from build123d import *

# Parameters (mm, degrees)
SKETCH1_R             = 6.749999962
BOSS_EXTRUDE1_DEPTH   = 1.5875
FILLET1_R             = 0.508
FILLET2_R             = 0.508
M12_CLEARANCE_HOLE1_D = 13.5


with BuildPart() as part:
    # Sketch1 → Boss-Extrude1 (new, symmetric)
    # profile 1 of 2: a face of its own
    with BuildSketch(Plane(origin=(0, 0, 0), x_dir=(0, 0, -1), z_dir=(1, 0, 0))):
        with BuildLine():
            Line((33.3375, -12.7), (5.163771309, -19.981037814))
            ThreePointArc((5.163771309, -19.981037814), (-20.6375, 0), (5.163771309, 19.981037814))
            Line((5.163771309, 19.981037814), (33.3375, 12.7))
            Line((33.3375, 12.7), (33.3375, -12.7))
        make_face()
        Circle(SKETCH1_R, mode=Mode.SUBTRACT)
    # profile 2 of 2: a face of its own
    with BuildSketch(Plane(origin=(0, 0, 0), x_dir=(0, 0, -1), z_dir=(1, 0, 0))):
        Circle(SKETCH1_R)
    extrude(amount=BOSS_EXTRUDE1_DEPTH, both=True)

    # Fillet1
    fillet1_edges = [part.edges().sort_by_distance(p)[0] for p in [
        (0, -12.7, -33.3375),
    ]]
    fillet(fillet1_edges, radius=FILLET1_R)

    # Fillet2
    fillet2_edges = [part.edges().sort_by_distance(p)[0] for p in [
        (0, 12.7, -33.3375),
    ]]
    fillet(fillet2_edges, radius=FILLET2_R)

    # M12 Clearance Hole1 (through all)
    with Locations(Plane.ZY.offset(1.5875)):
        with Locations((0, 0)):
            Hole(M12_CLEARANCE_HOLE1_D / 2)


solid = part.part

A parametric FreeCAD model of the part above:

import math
import FreeCAD as App
import Part
import Sketcher
Q = App.Units.Quantity


def edges_at(feature, points):
    """Names of the edges that pass closest to the given points."""
    edges = feature.Shape.Edges
    near = lambda p: min(range(len(edges)), key=lambda i: edges[i].distToShape(Part.Vertex(*p))[0])
    return sorted({f"Edge{near(p) + 1}" for p in points})

doc = App.newDocument("Part")
params = doc.addObject("Spreadsheet::Sheet", "Params")
for row, (alias, value) in enumerate([
    ("sketch1_width", "1 in"),
    ("sketch1_radius", "0.8125 in"),
    ("pad1_length", "0.125 in"),
    ("fillet_radius", "0.02 in"),
    ("fillet2_radius", "0.02 in"),
    ("hole_diameter", "13.5 mm"),
], start=1):
    params.set(f"A{row}", alias)
    params.set(f"B{row}", "=" + value)
    params.setAlias(f"B{row}", alias)

body = doc.addObject("PartDesign::Body", "Body")

# Sketch on YZ plane
sketch1 = body.newObject("Sketcher::SketchObject", "Sketch")
sketch1.AttachmentSupport = (doc.getObject("YZ_Plane"), [""])
sketch1.MapMode = "FlatFace"
sketch1.addGeometry(Part.LineSegment(App.Vector(-19.981038, -5.163771, 0), App.Vector(-12.7, -33.3375, 0)), False)
sketch1.addGeometry(Part.LineSegment(App.Vector(-12.7, -33.3375, 0), App.Vector(12.7, -33.3375, 0)), False)
sketch1.addGeometry(Part.LineSegment(App.Vector(12.7, -33.3375, 0), App.Vector(19.981038, -5.163771, 0)), False)
sketch1.addGeometry(Part.ArcOfCircle(Part.Circle(App.Vector(0, 0, 0), App.Vector(0, 0, 1), 20.6375), math.radians(-14.490118), math.radians(194.490118)), False)
sketch1.addConstraint(Sketcher.Constraint("Coincident", 0, 2, 1, 1))
sketch1.addConstraint(Sketcher.Constraint("Coincident", 1, 2, 2, 1))
sketch1.addConstraint(Sketcher.Constraint("Tangent", 2, 2, 3, 1))
sketch1.addConstraint(Sketcher.Constraint("Tangent", 3, 2, 0, 1))
sketch1.addConstraint(Sketcher.Constraint("Horizontal", 1))
sketch1.addConstraint(Sketcher.Constraint("Coincident", 3, 3, -1, 1))
sketch1.addConstraint(Sketcher.Constraint("Horizontal", 2, 2, 3, 2))
sketch1.addConstraint(Sketcher.Constraint("DistanceX", 1, 1, 1, 2, Q("1 in")))
sketch1.addConstraint(Sketcher.Constraint("Radius", 3, Q("0.8125 in")))
sketch1.addConstraint(Sketcher.Constraint("DistanceY", 0, 2, -1, 1, Q("1.3125 in")))
sketch1.setExpression("Constraints[7]", "Params.sketch1_width")
sketch1.setExpression("Constraints[8]", "Params.sketch1_radius")
pad1 = body.newObject("PartDesign::Pad", "Pad")
pad1.Profile = sketch1
pad1.setExpression("Length", "Params.pad1_length")
pad1.Midplane = True
doc.recompute()

fillet = body.newObject("PartDesign::Fillet", "Fillet")
fillet.Base = (pad1, edges_at(pad1, [(0, -12.7, -33.337)]))
fillet.setExpression("Radius", "Params.fillet_radius")
doc.recompute()

fillet2 = body.newObject("PartDesign::Fillet", "Fillet001")
fillet2.Base = (fillet, edges_at(fillet, [(0, 12.7, -33.337)]))
fillet2.setExpression("Radius", "Params.fillet2_radius")

# Sketch on YZ plane
sketch2 = body.newObject("Sketcher::SketchObject", "Sketch001")
sketch2.AttachmentSupport = (doc.getObject("YZ_Plane"), [""])
sketch2.MapMode = "FlatFace"
sketch2.AttachmentOffset = App.Placement(App.Vector(0, 0, -0.0625 * 25.4), App.Rotation())
sketch2.addGeometry(Part.Circle(App.Vector(0, 0, 0), App.Vector(0, 0, 1), 6.75), False)
sketch2.addConstraint(Sketcher.Constraint("Coincident", 0, 3, -1, 1))
sketch2.addConstraint(Sketcher.Constraint("Diameter", 0, Q("13.5 mm")))
doc.recompute()
hole = body.newObject("PartDesign::Hole", "Hole")
hole.Profile = sketch2
hole.ThreadType = "None"
hole.setExpression("Diameter", "Params.hole_diameter")
hole.DepthType = "ThroughAll"
hole.Reversed = True

doc.recompute()
